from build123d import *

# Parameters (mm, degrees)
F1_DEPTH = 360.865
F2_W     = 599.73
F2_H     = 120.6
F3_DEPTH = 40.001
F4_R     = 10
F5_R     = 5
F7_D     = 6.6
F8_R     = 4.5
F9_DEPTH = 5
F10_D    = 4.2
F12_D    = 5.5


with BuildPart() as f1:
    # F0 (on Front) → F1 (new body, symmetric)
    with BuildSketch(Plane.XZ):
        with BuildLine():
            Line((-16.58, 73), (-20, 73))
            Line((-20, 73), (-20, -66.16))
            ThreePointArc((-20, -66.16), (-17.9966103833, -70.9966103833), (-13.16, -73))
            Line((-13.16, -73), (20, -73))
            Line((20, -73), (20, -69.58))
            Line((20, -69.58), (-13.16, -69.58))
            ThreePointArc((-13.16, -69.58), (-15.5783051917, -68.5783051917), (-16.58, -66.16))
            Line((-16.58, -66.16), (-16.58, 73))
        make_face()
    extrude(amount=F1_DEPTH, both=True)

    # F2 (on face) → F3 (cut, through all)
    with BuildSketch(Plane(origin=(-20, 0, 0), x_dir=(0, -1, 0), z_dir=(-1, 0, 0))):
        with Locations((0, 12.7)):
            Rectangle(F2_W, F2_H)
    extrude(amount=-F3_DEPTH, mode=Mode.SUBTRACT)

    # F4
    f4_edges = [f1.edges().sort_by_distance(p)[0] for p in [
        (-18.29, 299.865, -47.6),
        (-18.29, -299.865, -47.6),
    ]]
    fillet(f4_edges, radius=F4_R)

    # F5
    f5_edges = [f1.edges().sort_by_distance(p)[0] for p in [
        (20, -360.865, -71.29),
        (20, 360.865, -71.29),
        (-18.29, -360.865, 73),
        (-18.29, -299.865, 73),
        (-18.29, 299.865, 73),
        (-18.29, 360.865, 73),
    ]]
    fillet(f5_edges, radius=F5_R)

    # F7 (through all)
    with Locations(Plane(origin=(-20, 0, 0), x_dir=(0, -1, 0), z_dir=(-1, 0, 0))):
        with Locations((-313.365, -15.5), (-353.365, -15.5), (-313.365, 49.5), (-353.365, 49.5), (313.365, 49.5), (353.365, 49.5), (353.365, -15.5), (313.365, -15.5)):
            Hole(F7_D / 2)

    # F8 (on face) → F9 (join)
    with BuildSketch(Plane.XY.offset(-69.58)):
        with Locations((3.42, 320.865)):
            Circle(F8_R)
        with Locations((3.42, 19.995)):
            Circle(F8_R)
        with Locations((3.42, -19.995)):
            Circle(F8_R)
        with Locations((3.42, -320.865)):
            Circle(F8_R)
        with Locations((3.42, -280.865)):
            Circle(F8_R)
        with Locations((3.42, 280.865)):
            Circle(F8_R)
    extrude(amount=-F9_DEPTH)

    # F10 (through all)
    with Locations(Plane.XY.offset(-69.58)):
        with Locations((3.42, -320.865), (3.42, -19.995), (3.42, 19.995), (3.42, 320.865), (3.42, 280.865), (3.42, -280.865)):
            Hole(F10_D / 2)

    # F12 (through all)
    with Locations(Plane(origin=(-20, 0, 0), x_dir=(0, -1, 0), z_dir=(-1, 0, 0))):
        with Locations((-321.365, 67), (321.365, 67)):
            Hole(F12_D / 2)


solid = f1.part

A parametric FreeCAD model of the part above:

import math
import FreeCAD as App
import Part
import Sketcher

V = App.Vector


def edges_at(feature, points):
    """Names of the edges that pass closest to the given points."""
    edges = feature.Shape.Edges
    near = lambda p: min(range(len(edges)), key=lambda i: edges[i].distToShape(Part.Vertex(*p))[0])
    return sorted({f"Edge{near(p) + 1}" for p in points})


def add_polygon(sketch, points):
    """Adds a closed chain of lines whose ends are joined by coincident constraints."""
    first, n = sketch.GeometryCount, len(points)
    for a, b in zip(points, points[1:] + points[:1]):
        sketch.addGeometry(Part.LineSegment(App.Vector(*a, 0), App.Vector(*b, 0)), False)
    for i in range(n):
        sketch.addConstraint(Sketcher.Constraint("Coincident", first + i, 2, first + (i + 1) % n, 1))

doc = App.newDocument("Part")
params = doc.addObject("Spreadsheet::Sheet", "Params")
for row, (alias, value) in enumerate([
    ("sketch1_radius", "6.84 mm"),
    ("sketch1_radius2", "3.42 mm"),
    ("pad1_length", "721.73 mm"),
    ("sketch2_height", "120.6 mm"),
    ("sketch2_width", "599.73 mm"),
    ("fillet_radius", "10 mm"),
    ("fillet2_radius", "5 mm"),
    ("sketch3_diameter", "6.6 mm"),
    ("hole_diameter", "6.6 mm"),
    ("sketch4_diameter", "9 mm"),
    ("pad2_length", "5 mm"),
    ("sketch5_diameter", "4.2 mm"),
    ("hole2_diameter", "4.2 mm"),
    ("sketch6_diameter", "5.5 mm"),
    ("hole3_diameter", "5.5 mm"),
], start=1):
    params.set(f"A{row}", alias)
    params.set(f"B{row}", "=" + value)
    params.setAlias(f"B{row}", alias)

body = doc.addObject("PartDesign::Body", "Body")

# Sketch on XZ plane
sketch1 = doc.addObject("Sketcher::SketchObject", "Sketch")
body.addObject(sketch1)
sketch1.AttachmentSupport = (doc.XZ_Plane, [""])
sketch1.MapMode = "FlatFace"
sketch1.addGeometry(Part.LineSegment(V(-16.6, 73, 0), V(-20, 73, 0)), False)
sketch1.addGeometry(Part.LineSegment(V(-20, 73, 0), V(-20, -66.2, 0)), False)
sketch1.addGeometry(Part.ArcOfCircle(Part.Circle(V(-13.2, -66.2, 0), V(0, 0, 1), 6.8), math.radians(180), math.radians(270)), False)
sketch1.addGeometry(Part.LineSegment(V(-13.2, -73, 0), V(20, -73, 0)), False)
sketch1.addGeometry(Part.LineSegment(V(20, -73, 0), V(20, -69.6, 0)), False)
sketch1.addGeometry(Part.LineSegment(V(20, -69.6, 0), V(-13.2, -69.6, 0)), False)
sketch1.addGeometry(Part.ArcOfCircle(Part.Circle(V(-13.2, -66.2, 0), V(0, 0, 1), 3.4), math.radians(180), math.radians(270)), False)
sketch1.addGeometry(Part.LineSegment(V(-16.6, -66.2, 0), V(-16.6, 73, 0)), False)
sketch1.addConstraint(Sketcher.Constraint("Coincident", 0, 2, 1, 1))
sketch1.addConstraint(Sketcher.Constraint("Tangent", 1, 2, 2, 1))
sketch1.addConstraint(Sketcher.Constraint("Tangent", 2, 2, 3, 1))
sketch1.addConstraint(Sketcher.Constraint("Coincident", 3, 2, 4, 1))
sketch1.addConstraint(Sketcher.Constraint("Coincident", 4, 2, 5, 1))
sketch1.addConstraint(Sketcher.Constraint("Tangent", 5, 2, 6, 2))
sketch1.addConstraint(Sketcher.Constraint("Tangent", 6, 1, 7, 1))
sketch1.addConstraint(Sketcher.Constraint("Coincident", 7, 2, 0, 1))
sketch1.addConstraint(Sketcher.Constraint("Horizontal", 0))
sketch1.addConstraint(Sketcher.Constraint("Vertical", 1))
sketch1.addConstraint(Sketcher.Constraint("Horizontal", 3))
sketch1.addConstraint(Sketcher.Constraint("Vertical", 4))
sketch1.addConstraint(Sketcher.Constraint("Horizontal", 5))
sketch1.addConstraint(Sketcher.Constraint("Vertical", 7))
sketch1.addConstraint(Sketcher.Constraint("Coincident", 6, 3, 2, 3))
sketch1.addConstraint(Sketcher.Constraint("Symmetric", 0, 2, 3, 2, -1, 1))
sketch1.addConstraint(Sketcher.Constraint("Radius", 2, 6.84))
sketch1.addConstraint(Sketcher.Constraint("Radius", 6, 3.42))
sketch1.addConstraint(Sketcher.Constraint("DistanceX", 0, 2, -1, 1, 20.0))
sketch1.addConstraint(Sketcher.Constraint("DistanceY", -1, 1, 0, 2, 73.0))
sketch1.setExpression("Constraints[16]", "Params.sketch1_radius")
sketch1.setExpression("Constraints[17]", "Params.sketch1_radius2")
pad1 = doc.addObject("PartDesign::Pad", "Pad")
body.addObject(pad1)
pad1.Profile = sketch1
pad1.setExpression("Length", "Params.pad1_length")
pad1.Midplane = True

# Sketch on YZ plane
sketch2 = doc.addObject("Sketcher::SketchObject", "Sketch001")
body.addObject(sketch2)
sketch2.AttachmentSupport = (doc.YZ_Plane, [""])
sketch2.MapMode = "FlatFace"
sketch2.AttachmentOffset = App.Placement(V(0, 0, -20), App.Rotation())
add_polygon(sketch2, [(300, 73), (300, -48), (-300, -48), (-300, 73)])  # lines 0-3
sketch2.addConstraint(Sketcher.Constraint("Vertical", 0))
sketch2.addConstraint(Sketcher.Constraint("Horizontal", 1))
sketch2.addConstraint(Sketcher.Constraint("Vertical", 2))
sketch2.addConstraint(Sketcher.Constraint("Horizontal", 3))
sketch2.addConstraint(Sketcher.Constraint("DistanceY", 0, 2, 0, 1, 120.6))
sketch2.addConstraint(Sketcher.Constraint("DistanceY", -1, 1, 2, 2, 73.0))
sketch2.addConstraint(Sketcher.Constraint("DistanceX", 1, 2, 1, 1, 599.73))
sketch2.addConstraint(Sketcher.Constraint("DistanceX", -1, 1, 0, 2, 299.865))
sketch2.setExpression("Constraints[8]", "Params.sketch2_height")
sketch2.setExpression("Constraints[10]", "Params.sketch2_width")
pocket1 = doc.addObject("PartDesign::Pocket", "Pocket")
body.addObject(pocket1)
pocket1.Profile = sketch2
pocket1.Type = "ThroughAll"
pocket1.Reversed = True
doc.recompute()

fillet = doc.addObject("PartDesign::Fillet", "Fillet")
body.addObject(fillet)
fillet.Base = (pocket1, edges_at(pocket1, [(-18.29, 299.865, -47.6), (-18.29, -299.865, -47.6)]))
fillet.setExpression("Radius", "Params.fillet_radius")
doc.recompute()

fillet2 = doc.addObject("PartDesign::Fillet", "Fillet001")
body.addObject(fillet2)
fillet2.Base = (fillet, edges_at(fillet, [
    (20, -360.865, -71.29),
    (20, 360.865, -71.29),
    (-18.29, -360.865, 73),
    (-18.29, -299.865, 73),
    (-18.29, 299.865, 73),
    (-18.29, 360.865, 73),
]))
fillet2.setExpression("Radius", "Params.fillet2_radius")

# Sketch on YZ plane
sketch3 = doc.addObject("Sketcher::SketchObject", "Sketch002")
body.addObject(sketch3)
sketch3.AttachmentSupport = (doc.YZ_Plane, [""])
sketch3.MapMode = "FlatFace"
sketch3.AttachmentOffset = App.Placement(V(0, 0, -20), App.Rotation())
sketch3.addGeometry(Part.Circle(V(313.4, -15.5, 0), V(0, 0, 1), 3.3), False)
sketch3.addGeometry(Part.Circle(V(353.4, -15.5, 0), V(0, 0, 1), 3.3), False)
sketch3.addGeometry(Part.Circle(V(313.4, 49.5, 0), V(0, 0, 1), 3.3), False)
sketch3.addGeometry(Part.Circle(V(353.4, 49.5, 0), V(0, 0, 1), 3.3), False)
sketch3.addGeometry(Part.Circle(V(-313.4, 49.5, 0), V(0, 0, 1), 3.3), False)
sketch3.addGeometry(Part.Circle(V(-353.4, 49.5, 0), V(0, 0, 1), 3.3), False)
sketch3.addGeometry(Part.Circle(V(-353.4, -15.5, 0), V(0, 0, 1), 3.3), False)
sketch3.addGeometry(Part.Circle(V(-313.4, -15.5, 0), V(0, 0, 1), 3.3), False)
sketch3.addConstraint(Sketcher.Constraint("Equal", 0, 1))
sketch3.addConstraint(Sketcher.Constraint("Equal", 1, 2))
sketch3.addConstraint(Sketcher.Constraint("Equal", 2, 3))
sketch3.addConstraint(Sketcher.Constraint("Equal", 3, 4))
sketch3.addConstraint(Sketcher.Constraint("Equal", 4, 5))
sketch3.addConstraint(Sketcher.Constraint("Equal", 5, 6))
sketch3.addConstraint(Sketcher.Constraint("Equal", 6, 7))
sketch3.addConstraint(Sketcher.Constraint("Symmetric", 2, 3, 4, 3, -2))
sketch3.addConstraint(Sketcher.Constraint("Symmetric", 3, 3, 5, 3, -2))
sketch3.addConstraint(Sketcher.Constraint("Symmetric", 1, 3, 6, 3, -2))
sketch3.addConstraint(Sketcher.Constraint("Symmetric", 0, 3, 7, 3, -2))
sketch3.addConstraint(Sketcher.Constraint("Horizontal", 0, 3, 1, 3))
sketch3.addConstraint(Sketcher.Constraint("Horizontal", 2, 3, 3, 3))
sketch3.addConstraint(Sketcher.Constraint("Vertical", 0, 3, 2, 3))
sketch3.addConstraint(Sketcher.Constraint("Vertical", 1, 3, 3, 3))
sketch3.addConstraint(Sketcher.Constraint("Diameter", 0, 6.6))
sketch3.addConstraint(Sketcher.Constraint("DistanceX", 0, 3, 1, 3, 40.0))
sketch3.addConstraint(Sketcher.Constraint("DistanceY", 0, 3, 2, 3, 65.0))
sketch3.addConstraint(Sketcher.Constraint("DistanceY", 0, 3, -1, 1, 15.5))
sketch3.addConstraint(Sketcher.Constraint("DistanceX", 4, 3, 2, 3, 626.73))
sketch3.setExpression("Constraints[15]", "Params.sketch3_diameter")
doc.recompute()
hole = doc.addObject("PartDesign::Hole", "Hole")
body.addObject(hole)
hole.Profile = sketch3
hole.ThreadType = "None"
hole.setExpression("Diameter", "Params.hole_diameter")
hole.DepthType = "ThroughAll"
hole.Reversed = True

# Sketch on XY plane
sketch4 = doc.addObject("Sketcher::SketchObject", "Sketch003")
body.addObject(sketch4)
sketch4.AttachmentSupport = (doc.XY_Plane, [""])
sketch4.MapMode = "FlatFace"
sketch4.AttachmentOffset = App.Placement(V(0, 0, -69.58), App.Rotation())
sketch4.addGeometry(Part.Circle(V(3.4, 320.9, 0), V(0, 0, 1), 4.5), False)
sketch4.addGeometry(Part.Circle(V(3.4, 20, 0), V(0, 0, 1), 4.5), False)
sketch4.addGeometry(Part.Circle(V(3.4, -20, 0), V(0, 0, 1), 4.5), False)
sketch4.addGeometry(Part.Circle(V(3.4, -320.9, 0), V(0, 0, 1), 4.5), False)
sketch4.addGeometry(Part.Circle(V(3.4, -280.9, 0), V(0, 0, 1), 4.5), False)
sketch4.addGeometry(Part.Circle(V(3.4, 280.9, 0), V(0, 0, 1), 4.5), False)
sketch4.addConstraint(Sketcher.Constraint("Equal", 0, 1))
sketch4.addConstraint(Sketcher.Constraint("Equal", 1, 2))
sketch4.addConstraint(Sketcher.Constraint("Equal", 2, 3))
sketch4.addConstraint(Sketcher.Constraint("Equal", 3, 4))
sketch4.addConstraint(Sketcher.Constraint("Equal", 4, 5))
sketch4.addConstraint(Sketcher.Constraint("Symmetric", 1, 3, 2, 3, -1))
sketch4.addConstraint(Sketcher.Constraint("Symmetric", 0, 3, 3, 3, -1))
sketch4.addConstraint(Sketcher.Constraint("Symmetric", 4, 3, 5, 3, -1))
sketch4.addConstraint(Sketcher.Constraint("Vertical", 0, 3, 1, 3))
sketch4.addConstraint(Sketcher.Constraint("Vertical", 3, 3, 4, 3))
sketch4.addConstraint(Sketcher.Constraint("Diameter", 0, 9.0))
sketch4.addConstraint(Sketcher.Constraint("DistanceY", 3, 3, 4, 3, 40.0))
sketch4.addConstraint(Sketcher.Constraint("DistanceX", -1, 1, 0, 3, 3.42))
sketch4.addConstraint(Sketcher.Constraint("DistanceY", 1, 3, 0, 3, 300.87))
sketch4.addConstraint(Sketcher.Constraint("DistanceY", 2, 3, 1, 3, 39.99))
sketch4.setExpression("Constraints[10]", "Params.sketch4_diameter")
pad2 = doc.addObject("PartDesign::Pad", "Pad001")
body.addObject(pad2)
pad2.Profile = sketch4
pad2.setExpression("Length", "Params.pad2_length")
pad2.Reversed = True

# Sketch on XY plane
sketch5 = doc.addObject("Sketcher::SketchObject", "Sketch004")
body.addObject(sketch5)
sketch5.AttachmentSupport = (doc.XY_Plane, [""])
sketch5.MapMode = "FlatFace"
sketch5.AttachmentOffset = App.Placement(V(0, 0, -69.58), App.Rotation())
sketch5.addGeometry(Part.Circle(V(3.4, -320.9, 0), V(0, 0, 1), 2.1), False)
sketch5.addGeometry(Part.Circle(V(3.4, -20, 0), V(0, 0, 1), 2.1), False)
sketch5.addGeometry(Part.Circle(V(3.4, 20, 0), V(0, 0, 1), 2.1), False)
sketch5.addGeometry(Part.Circle(V(3.4, 320.9, 0), V(0, 0, 1), 2.1), False)
sketch5.addGeometry(Part.Circle(V(3.4, 280.9, 0), V(0, 0, 1), 2.1), False)
sketch5.addGeometry(Part.Circle(V(3.4, -280.9, 0), V(0, 0, 1), 2.1), False)
sketch5.addConstraint(Sketcher.Constraint("Equal", 0, 1))
sketch5.addConstraint(Sketcher.Constraint("Equal", 1, 2))
sketch5.addConstraint(Sketcher.Constraint("Equal", 2, 3))
sketch5.addConstraint(Sketcher.Constraint("Equal", 3, 4))
sketch5.addConstraint(Sketcher.Constraint("Equal", 4, 5))
sketch5.addConstraint(Sketcher.Constraint("Symmetric", 1, 3, 2, 3, -1))
sketch5.addConstraint(Sketcher.Constraint("Symmetric", 0, 3, 3, 3, -1))
sketch5.addConstraint(Sketcher.Constraint("Symmetric", 4, 3, 5, 3, -1))
sketch5.addConstraint(Sketcher.Constraint("Vertical", 0, 3, 1, 3))
sketch5.addConstraint(Sketcher.Constraint("Vertical", 3, 3, 4, 3))
sketch5.addConstraint(Sketcher.Constraint("Diameter", 0, 4.2))
sketch5.addConstraint(Sketcher.Constraint("DistanceY", 4, 3, 3, 3, 40.0))
sketch5.addConstraint(Sketcher.Constraint("DistanceX", -1, 1, 0, 3, 3.42))
sketch5.addConstraint(Sketcher.Constraint("DistanceY", 0, 3, 1, 3, 300.87))
sketch5.addConstraint(Sketcher.Constraint("DistanceY", 1, 3, 2, 3, 39.99))
sketch5.setExpression("Constraints[10]", "Params.sketch5_diameter")
doc.recompute()
hole2 = doc.addObject("PartDesign::Hole", "Hole001")
body.addObject(hole2)
hole2.Profile = sketch5
hole2.ThreadType = "None"
hole2.setExpression("Diameter", "Params.hole2_diameter")
hole2.DepthType = "ThroughAll"

# Sketch on YZ plane
sketch6 = doc.addObject("Sketcher::SketchObject", "Sketch005")
body.addObject(sketch6)
sketch6.AttachmentSupport = (doc.YZ_Plane, [""])
sketch6.MapMode = "FlatFace"
sketch6.AttachmentOffset = App.Placement(V(0, 0, -20), App.Rotation())
sketch6.addGeometry(Part.Circle(V(321.4, 67, 0), V(0, 0, 1), 2.8), False)
sketch6.addGeometry(Part.Circle(V(-321.4, 67, 0), V(0, 0, 1), 2.8), False)
sketch6.addConstraint(Sketcher.Constraint("Equal", 0, 1))
sketch6.addConstraint(Sketcher.Constraint("Symmetric", 0, 3, 1, 3, -2))
sketch6.addConstraint(Sketcher.Constraint("Diameter", 0, 5.5))
sketch6.addConstraint(Sketcher.Constraint("DistanceY", -1, 1, 0, 3, 67.0))
sketch6.addConstraint(Sketcher.Constraint("DistanceX", 1, 3, 0, 3, 642.73))
sketch6.setExpression("Constraints[2]", "Params.sketch6_diameter")
doc.recompute()
hole3 = doc.addObject("PartDesign::Hole", "Hole002")
body.addObject(hole3)
hole3.Profile = sketch6
hole3.ThreadType = "None"
hole3.setExpression("Diameter", "Params.hole3_diameter")
hole3.DepthType = "ThroughAll"
hole3.Reversed = True

doc.recompute()
